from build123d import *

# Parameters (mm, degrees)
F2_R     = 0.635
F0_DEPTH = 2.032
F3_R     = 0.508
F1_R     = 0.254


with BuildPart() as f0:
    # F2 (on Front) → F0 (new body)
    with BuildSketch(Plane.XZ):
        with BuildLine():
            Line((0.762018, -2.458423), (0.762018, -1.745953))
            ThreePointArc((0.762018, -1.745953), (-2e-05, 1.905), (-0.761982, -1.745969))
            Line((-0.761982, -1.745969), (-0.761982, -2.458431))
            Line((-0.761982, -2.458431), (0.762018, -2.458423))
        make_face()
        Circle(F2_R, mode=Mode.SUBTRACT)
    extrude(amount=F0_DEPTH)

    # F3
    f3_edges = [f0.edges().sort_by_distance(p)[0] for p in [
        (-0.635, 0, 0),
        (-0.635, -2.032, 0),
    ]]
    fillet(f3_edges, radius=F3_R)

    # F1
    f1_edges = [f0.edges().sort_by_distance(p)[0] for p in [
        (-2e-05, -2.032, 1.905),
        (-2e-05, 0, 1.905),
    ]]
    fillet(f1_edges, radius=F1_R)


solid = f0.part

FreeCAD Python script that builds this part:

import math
import FreeCAD as App
import Part
import Sketcher
from FreeCAD import Vector
Q = App.Units.Quantity


def edges_at(feature, points):
    """Names of the edges that pass closest to the given points."""
    edges = feature.Shape.Edges
    near = lambda p: min(range(len(edges)), key=lambda i: edges[i].distToShape(Part.Vertex(*p))[0])
    return sorted({f"Edge{near(p) + 1}" for p in points})

doc = App.newDocument("Part")
body = doc.addObject("PartDesign::Body", "Body")

# Sketch on XZ plane
sketch1 = body.newObject("Sketcher::SketchObject", "Sketch")
sketch1.AttachmentSupport = (doc.getObject("XZ_Plane"), [""])
sketch1.MapMode = "FlatFace"
sketch1.addGeometry([
    Part.LineSegment(Vector(0.8, -2.5, 0), Vector(0.8, -1.7, 0)),  # 0
    Part.ArcOfCircle(Part.Circle(Vector(0, 0, 0), Vector(0, 0, 1), 1.9), math.radians(-66), math.radians(246)),  # 1
    Part.LineSegment(Vector(-0.8, -1.7, 0), Vector(-0.8, -2.5, 0)),  # 2
    Part.LineSegment(Vector(-0.8, -2.5, 0), Vector(0.8, -2.5, 0)),  # 3
    Part.Circle(Vector(0, 0, 0), Vector(0, 0, 1), 0.6),  # 4
], False)
sketch1.addConstraint([
    Sketcher.Constraint("Coincident", 0, 2, 1, 1),
    Sketcher.Constraint("Coincident", 1, 2, 2, 1),
    Sketcher.Constraint("Coincident", 2, 2, 3, 1),
    Sketcher.Constraint("Coincident", 3, 2, 0, 1),
    Sketcher.Constraint("Vertical", 0),
    Sketcher.Constraint("Vertical", 2),
    Sketcher.Constraint("Coincident", 1, 3, -1, 1),
    Sketcher.Constraint("Coincident", 4, 3, -1, 1),
    Sketcher.Constraint("Diameter", 4, Q("0.05 in")),
    Sketcher.Constraint("Radius", 1, Q("0.075 in")),
    Sketcher.Constraint("Distance", 3, Q("0.06 in")),
    Sketcher.Constraint("DistanceY", 0, 1, 0, 2, Q("0.71247 mm")),
    Sketcher.Constraint("DistanceY", 2, 2, 2, 1, Q("0.712462 mm")),
    Sketcher.Constraint("DistanceY", 1, 2, -1, 1, Q("1.745969 mm")),
])
pad1 = body.newObject("PartDesign::Pad", "Pad")
pad1.Profile = sketch1
pad1.Length = Q("0.08 in")
doc.recompute()

fillet = body.newObject("PartDesign::Fillet", "Fillet")
fillet.Base = (pad1, edges_at(pad1, [(-0.635, 0, 0), (-0.635, -2.032, 0)]))
fillet.Radius = Q("0.02 in")
doc.recompute()

fillet2 = body.newObject("PartDesign::Fillet", "Fillet001")
fillet2.Base = (fillet, edges_at(fillet, [(0, -2.032, 1.905), (0, 0, 1.905)]))
fillet2.Radius = Q("0.01 in")

doc.recompute()
